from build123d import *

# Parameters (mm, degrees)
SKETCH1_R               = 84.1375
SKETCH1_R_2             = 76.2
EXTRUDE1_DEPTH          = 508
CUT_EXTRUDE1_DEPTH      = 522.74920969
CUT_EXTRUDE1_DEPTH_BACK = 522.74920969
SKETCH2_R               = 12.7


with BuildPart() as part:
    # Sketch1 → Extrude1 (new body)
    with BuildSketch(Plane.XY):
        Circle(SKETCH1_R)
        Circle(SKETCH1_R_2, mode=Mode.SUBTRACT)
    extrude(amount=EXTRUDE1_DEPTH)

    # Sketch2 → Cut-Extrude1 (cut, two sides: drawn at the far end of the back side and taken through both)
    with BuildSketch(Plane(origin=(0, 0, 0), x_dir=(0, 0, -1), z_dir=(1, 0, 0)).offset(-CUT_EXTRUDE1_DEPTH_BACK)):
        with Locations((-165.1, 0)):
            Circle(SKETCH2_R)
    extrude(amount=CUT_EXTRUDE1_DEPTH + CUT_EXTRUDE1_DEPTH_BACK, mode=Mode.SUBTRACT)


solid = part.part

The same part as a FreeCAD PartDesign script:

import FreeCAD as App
import Part
import Sketcher
Q = App.Units.Quantity

doc = App.newDocument("Part")
body = doc.addObject("PartDesign::Body", "Body")

sketch1 = body.newObject("Sketcher::SketchObject", "Sketch")
sketch1.AttachmentSupport = (doc.getObject("XY_Plane"), [""])
sketch1.MapMode = "FlatFace"
sketch1.addGeometry([
    Part.Circle(App.Vector(0, 0, 0), App.Vector(0, 0, 1), 84.1375),
    Part.Circle(App.Vector(0, 0, 0), App.Vector(0, 0, 1), 76.2),
], False)
sketch1.addConstraint([
    Sketcher.Constraint("Coincident", 0, 3, -1, 1),
    Sketcher.Constraint("Coincident", 1, 3, -1, 1),
    Sketcher.Constraint("Diameter", 1, Q("6 in")),
    Sketcher.Constraint("Diameter", 0, Q("6.625 in")),
])
pad1 = body.newObject("PartDesign::Pad", "Pad")
pad1.Profile = sketch1
pad1.Length = Q("20 in")

sketch2 = body.newObject("Sketcher::SketchObject", "Sketch001")
sketch2.AttachmentSupport = (doc.getObject("YZ_Plane"), [""])
sketch2.MapMode = "FlatFace"
sketch2.addGeometry(Part.Circle(App.Vector(0, 165.1, 0), App.Vector(0, 0, 1), 12.7), False)
sketch2.addConstraint([
    Sketcher.Constraint("PointOnObject", 0, 3, -2),
    Sketcher.Constraint("Diameter", 0, Q("1 in")),
    Sketcher.Constraint("DistanceY", -1, 1, 0, 3, Q("6.5 in")),
])
pocket1 = body.newObject("PartDesign::Pocket", "Pocket")
pocket1.Profile = sketch2
pocket1.Type = "ThroughAll"
pocket1.Midplane = True

doc.recompute()
